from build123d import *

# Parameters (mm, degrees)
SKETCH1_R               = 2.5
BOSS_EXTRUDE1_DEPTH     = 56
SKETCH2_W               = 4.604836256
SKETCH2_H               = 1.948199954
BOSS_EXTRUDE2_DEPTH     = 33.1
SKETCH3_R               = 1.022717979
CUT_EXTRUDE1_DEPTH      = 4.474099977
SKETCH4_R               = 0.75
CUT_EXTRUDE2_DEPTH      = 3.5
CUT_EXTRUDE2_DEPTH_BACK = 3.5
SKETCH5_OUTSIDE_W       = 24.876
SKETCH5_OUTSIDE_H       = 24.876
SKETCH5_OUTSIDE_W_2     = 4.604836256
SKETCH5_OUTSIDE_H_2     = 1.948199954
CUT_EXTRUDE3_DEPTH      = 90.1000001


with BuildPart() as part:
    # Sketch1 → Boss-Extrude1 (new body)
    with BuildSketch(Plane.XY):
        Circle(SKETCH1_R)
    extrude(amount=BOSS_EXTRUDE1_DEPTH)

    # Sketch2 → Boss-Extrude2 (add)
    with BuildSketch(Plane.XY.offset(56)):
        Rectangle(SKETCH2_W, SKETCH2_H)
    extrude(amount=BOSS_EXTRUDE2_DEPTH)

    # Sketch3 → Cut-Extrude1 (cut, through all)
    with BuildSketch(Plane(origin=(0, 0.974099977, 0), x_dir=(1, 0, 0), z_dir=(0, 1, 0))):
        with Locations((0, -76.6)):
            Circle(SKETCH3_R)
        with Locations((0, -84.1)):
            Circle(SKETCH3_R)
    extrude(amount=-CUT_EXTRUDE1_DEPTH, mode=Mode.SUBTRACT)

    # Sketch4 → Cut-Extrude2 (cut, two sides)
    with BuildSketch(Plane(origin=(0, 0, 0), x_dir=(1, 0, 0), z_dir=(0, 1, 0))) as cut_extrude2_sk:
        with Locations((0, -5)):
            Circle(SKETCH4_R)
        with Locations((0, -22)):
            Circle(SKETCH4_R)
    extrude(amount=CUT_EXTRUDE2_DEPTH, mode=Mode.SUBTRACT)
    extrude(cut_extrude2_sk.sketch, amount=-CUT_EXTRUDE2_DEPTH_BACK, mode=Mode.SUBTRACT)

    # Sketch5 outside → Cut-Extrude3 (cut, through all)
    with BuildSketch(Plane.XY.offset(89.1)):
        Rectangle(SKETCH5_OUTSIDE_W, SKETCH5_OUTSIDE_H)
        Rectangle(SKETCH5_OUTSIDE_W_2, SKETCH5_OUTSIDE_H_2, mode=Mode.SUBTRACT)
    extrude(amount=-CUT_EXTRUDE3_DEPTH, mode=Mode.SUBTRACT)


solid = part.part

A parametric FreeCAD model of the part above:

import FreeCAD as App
import Part
import Sketcher
from FreeCAD import Vector
Q = App.Units.Quantity

doc = App.newDocument("Part")
body = doc.addObject("PartDesign::Body", "Body")

# Sketch on XY plane
sketch1 = body.newObject("Sketcher::SketchObject", "Sketch")
sketch1.AttachmentSupport = (doc.getObject("XY_Plane"), [""])
sketch1.MapMode = "FlatFace"
sketch1.addGeometry(Part.Circle(Vector(0, 0, 0), Vector(0, 0, 1), 2.5), False)
sketch1.addConstraint([
    Sketcher.Constraint("Coincident", 0, 3, -1, 1),
    Sketcher.Constraint("Diameter", 0, Q("5 mm")),
])
pad1 = body.newObject("PartDesign::Pad", "Pad")
pad1.Profile = sketch1
pad1.Length = 56

# Sketch on XY plane
sketch2 = body.newObject("Sketcher::SketchObject", "Sketch001")
sketch2.AttachmentSupport = (doc.getObject("XY_Plane"), [""])
sketch2.MapMode = "FlatFace"
sketch2.AttachmentOffset = App.Placement(Vector(0, 0, 56), App.Rotation())
sketch2.addGeometry([
    Part.LineSegment(Vector(-2.302418, 0.9741, 0), Vector(-2.302418, -0.9741, 0)),
    Part.LineSegment(Vector(-2.302418, -0.9741, 0), Vector(2.302418, -0.9741, 0)),
    Part.LineSegment(Vector(2.302418, -0.9741, 0), Vector(2.302418, 0.9741, 0)),
    Part.LineSegment(Vector(2.302418, 0.9741, 0), Vector(-2.302418, 0.9741, 0)),
], False)
sketch2.addConstraint([
    Sketcher.Constraint("Coincident", 0, 2, 1, 1),
    Sketcher.Constraint("Coincident", 1, 2, 2, 1),
    Sketcher.Constraint("Coincident", 2, 2, 3, 1),
    Sketcher.Constraint("Coincident", 3, 2, 0, 1),
    Sketcher.Constraint("Vertical", 0),
    Sketcher.Constraint("Horizontal", 1),
    Sketcher.Constraint("Vertical", 2),
    Sketcher.Constraint("Horizontal", 3),
    Sketcher.Constraint("Symmetric", 0, 2, 2, 2, -1, 1),
    Sketcher.Constraint("DistanceY", 0, 2, 0, 1, Q("1.9482 mm")),
    Sketcher.Constraint("DistanceX", 1, 1, 1, 2, Q("4.604836 mm")),
])
pad2 = body.newObject("PartDesign::Pad", "Pad001")
pad2.Profile = sketch2
pad2.Length = 33.1

# Sketch on XZ plane
sketch3 = body.newObject("Sketcher::SketchObject", "Sketch002")
sketch3.AttachmentSupport = (doc.getObject("XZ_Plane"), [""])
sketch3.MapMode = "FlatFace"
sketch3.AttachmentOffset = App.Placement(Vector(0, 0, -0.9741), App.Rotation())
sketch3.addGeometry([
    Part.Circle(Vector(0, 76.6, 0), Vector(0, 0, 1), 1.022718),
    Part.Circle(Vector(0, 84.1, 0), Vector(0, 0, 1), 1.022718),
], False)
sketch3.addConstraint([
    Sketcher.Constraint("Equal", 0, 1),
    Sketcher.Constraint("PointOnObject", 0, 3, -2),
    Sketcher.Constraint("PointOnObject", 1, 3, -2),
    Sketcher.Constraint("DistanceY", -1, 1, 0, 3, Q("76.6 mm")),
    Sketcher.Constraint("DistanceY", -1, 1, 1, 3, Q("84.1 mm")),
    Sketcher.Constraint("Diameter", 0, Q("2.045436 mm")),
])
pocket1 = body.newObject("PartDesign::Pocket", "Pocket")
pocket1.Profile = sketch3
pocket1.Type = "ThroughAll"
pocket1.Reversed = True

# Sketch on XZ plane
sketch4 = body.newObject("Sketcher::SketchObject", "Sketch003")
sketch4.AttachmentSupport = (doc.getObject("XZ_Plane"), [""])
sketch4.MapMode = "FlatFace"
sketch4.addGeometry([
    Part.Circle(Vector(0, 5, 0), Vector(0, 0, 1), 0.75),
    Part.Circle(Vector(0, 22, 0), Vector(0, 0, 1), 0.75),
], False)
sketch4.addConstraint([
    Sketcher.Constraint("Equal", 0, 1),
    Sketcher.Constraint("PointOnObject", 0, 3, -2),
    Sketcher.Constraint("PointOnObject", 1, 3, -2),
    Sketcher.Constraint("Diameter", 0, Q("1.5 mm")),
    Sketcher.Constraint("DistanceY", -1, 1, 0, 3, Q("5 mm")),
    Sketcher.Constraint("DistanceY", -1, 1, 1, 3, Q("22 mm")),
])
pocket2 = body.newObject("PartDesign::Pocket", "Pocket001")
pocket2.Profile = sketch4
pocket2.Type = "ThroughAll"
pocket2.Midplane = True

# Sketch on XY plane
sketch5 = body.newObject("Sketcher::SketchObject", "Sketch004")
sketch5.AttachmentSupport = (doc.getObject("XY_Plane"), [""])
sketch5.MapMode = "FlatFace"
sketch5.AttachmentOffset = App.Placement(Vector(0, 0, 89.1), App.Rotation())
sketch5.addGeometry([
    Part.LineSegment(Vector(-12.438, 12.438, 0), Vector(-12.438, -12.438, 0)),  # 0
    Part.LineSegment(Vector(-12.438, -12.438, 0), Vector(12.438, -12.438, 0)),  # 1
    Part.LineSegment(Vector(12.438, -12.438, 0), Vector(12.438, 12.438, 0)),  # 2
    Part.LineSegment(Vector(12.438, 12.438, 0), Vector(-12.438, 12.438, 0)),  # 3
    Part.LineSegment(Vector(2.302418, -0.9741, 0), Vector(-2.302418, -0.9741, 0)),  # 4
    Part.LineSegment(Vector(-2.302418, -0.9741, 0), Vector(-2.302418, 0.9741, 0)),  # 5
    Part.LineSegment(Vector(-2.302418, 0.9741, 0), Vector(2.302418, 0.9741, 0)),  # 6
    Part.LineSegment(Vector(2.302418, 0.9741, 0), Vector(2.302418, -0.9741, 0)),  # 7
], False)
sketch5.addConstraint([
    Sketcher.Constraint("Coincident", 0, 2, 1, 1),
    Sketcher.Constraint("Coincident", 1, 2, 2, 1),
    Sketcher.Constraint("Coincident", 2, 2, 3, 1),
    Sketcher.Constraint("Coincident", 3, 2, 0, 1),
    Sketcher.Constraint("Coincident", 4, 2, 5, 1),
    Sketcher.Constraint("Coincident", 5, 2, 6, 1),
    Sketcher.Constraint("Coincident", 6, 2, 7, 1),
    Sketcher.Constraint("Coincident", 7, 2, 4, 1),
    Sketcher.Constraint("Vertical", 0),
    Sketcher.Constraint("Horizontal", 1),
    Sketcher.Constraint("Vertical", 2),
    Sketcher.Constraint("Horizontal", 3),
    Sketcher.Constraint("Horizontal", 4),
    Sketcher.Constraint("Vertical", 5),
    Sketcher.Constraint("Horizontal", 6),
    Sketcher.Constraint("Vertical", 7),
    Sketcher.Constraint("Symmetric", 0, 2, 2, 2, -1, 1),
    Sketcher.Constraint("Symmetric", 4, 2, 6, 2, -1, 1),
    Sketcher.Constraint("Equal", 3, 0),
    Sketcher.Constraint("DistanceX", 1, 1, 1, 2, Q("24.876 mm")),
    Sketcher.Constraint("DistanceY", 5, 1, 5, 2, Q("1.9482 mm")),
    Sketcher.Constraint("DistanceX", 4, 2, 4, 1, Q("4.604836 mm")),
])
pocket3 = body.newObject("PartDesign::Pocket", "Pocket002")
pocket3.Profile = sketch5
pocket3.Type = "ThroughAll"

doc.recompute()
